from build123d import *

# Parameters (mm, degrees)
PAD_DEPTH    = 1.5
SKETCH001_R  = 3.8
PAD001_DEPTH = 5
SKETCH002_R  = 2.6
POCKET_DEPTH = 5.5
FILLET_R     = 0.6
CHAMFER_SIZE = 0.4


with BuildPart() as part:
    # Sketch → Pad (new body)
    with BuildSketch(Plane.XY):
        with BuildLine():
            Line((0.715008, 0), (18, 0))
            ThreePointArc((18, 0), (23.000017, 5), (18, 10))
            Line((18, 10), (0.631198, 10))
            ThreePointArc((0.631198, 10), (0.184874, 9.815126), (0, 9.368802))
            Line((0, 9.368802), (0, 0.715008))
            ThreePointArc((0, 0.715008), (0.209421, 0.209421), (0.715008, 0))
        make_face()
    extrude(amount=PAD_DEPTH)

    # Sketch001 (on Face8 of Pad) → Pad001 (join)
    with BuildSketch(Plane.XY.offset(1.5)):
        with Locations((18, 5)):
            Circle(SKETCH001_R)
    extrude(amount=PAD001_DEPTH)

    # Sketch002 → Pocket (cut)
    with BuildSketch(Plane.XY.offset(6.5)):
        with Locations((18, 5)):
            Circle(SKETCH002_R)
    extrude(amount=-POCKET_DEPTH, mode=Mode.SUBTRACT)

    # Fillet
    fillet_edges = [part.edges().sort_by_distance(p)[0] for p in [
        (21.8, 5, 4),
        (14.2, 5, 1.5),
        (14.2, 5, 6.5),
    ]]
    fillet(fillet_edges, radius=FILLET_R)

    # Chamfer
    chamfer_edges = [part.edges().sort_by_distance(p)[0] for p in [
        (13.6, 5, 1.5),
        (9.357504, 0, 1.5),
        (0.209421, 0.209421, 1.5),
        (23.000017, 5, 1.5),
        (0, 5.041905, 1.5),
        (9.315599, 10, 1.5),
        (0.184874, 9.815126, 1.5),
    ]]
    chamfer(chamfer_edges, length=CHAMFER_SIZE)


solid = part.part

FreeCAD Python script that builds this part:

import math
import FreeCAD as App
import Part
import Sketcher
from FreeCAD import Vector


def edges_at(feature, points):
    """Names of the edges that pass closest to the given points."""
    edges = feature.Shape.Edges
    near = lambda p: min(range(len(edges)), key=lambda i: edges[i].distToShape(Part.Vertex(*p))[0])
    return sorted({f"Edge{near(p) + 1}" for p in points})

doc = App.newDocument("Part")
params = doc.addObject("Spreadsheet::Sheet", "Params")
for row, (alias, value) in enumerate([
    ("sketch1_radius", "5 mm"),
    ("pad1_length", "1.5 mm"),
    ("sketch2_diameter", "7.6 mm"),
    ("pad2_length", "5 mm"),
    ("sketch3_diameter", "5.2 mm"),
    ("pocket1_length", "5.5 mm"),
    ("fillet_radius", "0.6 mm"),
    ("chamfer_size", "0.4 mm"),
], start=1):
    params.set(f"A{row}", alias)
    params.set(f"B{row}", "=" + value)
    params.setAlias(f"B{row}", alias)

body = doc.addObject("PartDesign::Body", "Body")

sketch1 = doc.addObject("Sketcher::SketchObject", "Sketch")
body.addObject(sketch1)
sketch1.AttachmentSupport = (doc.XY_Plane, [""])
sketch1.MapMode = "FlatFace"
sketch1.addGeometry([
    Part.LineSegment(Vector(0.7, 0, 0), Vector(18, 0, 0)),
    Part.ArcOfCircle(Part.Circle(Vector(18, 5, 0), Vector(0, 0, 1), 5), math.radians(-90), math.radians(90)),
    Part.LineSegment(Vector(18, 10, 0), Vector(0.6, 10, 0)),
    Part.ArcOfCircle(Part.Circle(Vector(0.6, 9.4, 0), Vector(0, 0, 1), 0.6), math.radians(90), math.radians(180)),
    Part.LineSegment(Vector(0, 9.4, 0), Vector(0, 0.7, 0)),
    Part.ArcOfCircle(Part.Circle(Vector(0.7, 0.7, 0), Vector(0, 0, 1), 0.7), math.radians(-180), math.radians(-90)),
], False)
sketch1.addConstraint([
    Sketcher.Constraint("Coincident", 0, 2, 1, 1),
    Sketcher.Constraint("Coincident", 1, 2, 2, 1),
    Sketcher.Constraint("Coincident", 2, 2, 3, 1),
    Sketcher.Constraint("Coincident", 3, 2, 4, 1),
    Sketcher.Constraint("Tangent", 4, 2, 5, 1),
    Sketcher.Constraint("Tangent", 5, 2, 0, 1),
    Sketcher.Constraint("Horizontal", 0),
    Sketcher.Constraint("Horizontal", 2),
    Sketcher.Constraint("Vertical", 4),
    Sketcher.Constraint("PointOnObject", 0, 2, -1),
    Sketcher.Constraint("PointOnObject", 3, 2, -2),
    Sketcher.Constraint("Vertical", 0, 2, 1, 2),
    Sketcher.Constraint("Vertical", 3, 3, 2, 2),
    Sketcher.Constraint("Radius", 1, 5.0),
    Sketcher.Constraint("DistanceX", -1, 1, 0, 2, 18.0),
    Sketcher.Constraint("Radius", 3, 0.631199),
    Sketcher.Constraint("Radius", 5, 0.715008),
    Sketcher.Constraint("DistanceY", 4, 2, 4, 1, 8.653794),
    Sketcher.Constraint("DistanceX", 5, 3, 1, 3, 17.285009),
])
sketch1.setExpression("Constraints[13]", "Params.sketch1_radius")
pad1 = doc.addObject("PartDesign::Pad", "Pad")
body.addObject(pad1)
pad1.Profile = sketch1
pad1.setExpression("Length", "Params.pad1_length")

sketch2 = doc.addObject("Sketcher::SketchObject", "Sketch001")
body.addObject(sketch2)
sketch2.AttachmentSupport = (doc.XY_Plane, [""])
sketch2.MapMode = "FlatFace"
sketch2.AttachmentOffset = App.Placement(Vector(0, 0, 1.5), App.Rotation())
sketch2.addGeometry(Part.Circle(Vector(18, 5, 0), Vector(0, 0, 1), 3.8), False)
sketch2.addConstraint([
    Sketcher.Constraint("Diameter", 0, 7.6),
    Sketcher.Constraint("DistanceX", -1, 1, 0, 3, 18.0),
    Sketcher.Constraint("DistanceY", -1, 1, 0, 3, 5.0),
])
sketch2.setExpression("Constraints[0]", "Params.sketch2_diameter")
pad2 = doc.addObject("PartDesign::Pad", "Pad001")
body.addObject(pad2)
pad2.Profile = sketch2
pad2.setExpression("Length", "Params.pad2_length")

sketch3 = doc.addObject("Sketcher::SketchObject", "Sketch002")
body.addObject(sketch3)
sketch3.AttachmentSupport = (doc.XY_Plane, [""])
sketch3.MapMode = "FlatFace"
sketch3.AttachmentOffset = App.Placement(Vector(0, 0, 6.5), App.Rotation())
sketch3.addGeometry(Part.Circle(Vector(18, 5, 0), Vector(0, 0, 1), 2.6), False)
sketch3.addConstraint([
    Sketcher.Constraint("Diameter", 0, 5.2),
    Sketcher.Constraint("DistanceX", -1, 1, 0, 3, 18.0),
    Sketcher.Constraint("DistanceY", -1, 1, 0, 3, 5.0),
])
sketch3.setExpression("Constraints[0]", "Params.sketch3_diameter")
pocket1 = doc.addObject("PartDesign::Pocket", "Pocket")
body.addObject(pocket1)
pocket1.Profile = sketch3
pocket1.setExpression("Length", "Params.pocket1_length")
doc.recompute()

fillet = doc.addObject("PartDesign::Fillet", "Fillet")
body.addObject(fillet)
fillet.Base = (pocket1, edges_at(pocket1, [(21.8, 5, 4), (14.2, 5, 1.5), (14.2, 5, 6.5)]))
fillet.setExpression("Radius", "Params.fillet_radius")
doc.recompute()

chamfer = doc.addObject("PartDesign::Chamfer", "Chamfer")
body.addObject(chamfer)
chamfer.Base = (fillet, edges_at(fillet, [
    (13.6, 5, 1.5),
    (9.358, 0, 1.5),
    (0.209, 0.209, 1.5),
    (23, 5, 1.5),
    (0, 5.042, 1.5),
    (9.316, 10, 1.5),
    (0.185, 9.815, 1.5),
]))
chamfer.setExpression("Size", "Params.chamfer_size")

doc.recompute()
